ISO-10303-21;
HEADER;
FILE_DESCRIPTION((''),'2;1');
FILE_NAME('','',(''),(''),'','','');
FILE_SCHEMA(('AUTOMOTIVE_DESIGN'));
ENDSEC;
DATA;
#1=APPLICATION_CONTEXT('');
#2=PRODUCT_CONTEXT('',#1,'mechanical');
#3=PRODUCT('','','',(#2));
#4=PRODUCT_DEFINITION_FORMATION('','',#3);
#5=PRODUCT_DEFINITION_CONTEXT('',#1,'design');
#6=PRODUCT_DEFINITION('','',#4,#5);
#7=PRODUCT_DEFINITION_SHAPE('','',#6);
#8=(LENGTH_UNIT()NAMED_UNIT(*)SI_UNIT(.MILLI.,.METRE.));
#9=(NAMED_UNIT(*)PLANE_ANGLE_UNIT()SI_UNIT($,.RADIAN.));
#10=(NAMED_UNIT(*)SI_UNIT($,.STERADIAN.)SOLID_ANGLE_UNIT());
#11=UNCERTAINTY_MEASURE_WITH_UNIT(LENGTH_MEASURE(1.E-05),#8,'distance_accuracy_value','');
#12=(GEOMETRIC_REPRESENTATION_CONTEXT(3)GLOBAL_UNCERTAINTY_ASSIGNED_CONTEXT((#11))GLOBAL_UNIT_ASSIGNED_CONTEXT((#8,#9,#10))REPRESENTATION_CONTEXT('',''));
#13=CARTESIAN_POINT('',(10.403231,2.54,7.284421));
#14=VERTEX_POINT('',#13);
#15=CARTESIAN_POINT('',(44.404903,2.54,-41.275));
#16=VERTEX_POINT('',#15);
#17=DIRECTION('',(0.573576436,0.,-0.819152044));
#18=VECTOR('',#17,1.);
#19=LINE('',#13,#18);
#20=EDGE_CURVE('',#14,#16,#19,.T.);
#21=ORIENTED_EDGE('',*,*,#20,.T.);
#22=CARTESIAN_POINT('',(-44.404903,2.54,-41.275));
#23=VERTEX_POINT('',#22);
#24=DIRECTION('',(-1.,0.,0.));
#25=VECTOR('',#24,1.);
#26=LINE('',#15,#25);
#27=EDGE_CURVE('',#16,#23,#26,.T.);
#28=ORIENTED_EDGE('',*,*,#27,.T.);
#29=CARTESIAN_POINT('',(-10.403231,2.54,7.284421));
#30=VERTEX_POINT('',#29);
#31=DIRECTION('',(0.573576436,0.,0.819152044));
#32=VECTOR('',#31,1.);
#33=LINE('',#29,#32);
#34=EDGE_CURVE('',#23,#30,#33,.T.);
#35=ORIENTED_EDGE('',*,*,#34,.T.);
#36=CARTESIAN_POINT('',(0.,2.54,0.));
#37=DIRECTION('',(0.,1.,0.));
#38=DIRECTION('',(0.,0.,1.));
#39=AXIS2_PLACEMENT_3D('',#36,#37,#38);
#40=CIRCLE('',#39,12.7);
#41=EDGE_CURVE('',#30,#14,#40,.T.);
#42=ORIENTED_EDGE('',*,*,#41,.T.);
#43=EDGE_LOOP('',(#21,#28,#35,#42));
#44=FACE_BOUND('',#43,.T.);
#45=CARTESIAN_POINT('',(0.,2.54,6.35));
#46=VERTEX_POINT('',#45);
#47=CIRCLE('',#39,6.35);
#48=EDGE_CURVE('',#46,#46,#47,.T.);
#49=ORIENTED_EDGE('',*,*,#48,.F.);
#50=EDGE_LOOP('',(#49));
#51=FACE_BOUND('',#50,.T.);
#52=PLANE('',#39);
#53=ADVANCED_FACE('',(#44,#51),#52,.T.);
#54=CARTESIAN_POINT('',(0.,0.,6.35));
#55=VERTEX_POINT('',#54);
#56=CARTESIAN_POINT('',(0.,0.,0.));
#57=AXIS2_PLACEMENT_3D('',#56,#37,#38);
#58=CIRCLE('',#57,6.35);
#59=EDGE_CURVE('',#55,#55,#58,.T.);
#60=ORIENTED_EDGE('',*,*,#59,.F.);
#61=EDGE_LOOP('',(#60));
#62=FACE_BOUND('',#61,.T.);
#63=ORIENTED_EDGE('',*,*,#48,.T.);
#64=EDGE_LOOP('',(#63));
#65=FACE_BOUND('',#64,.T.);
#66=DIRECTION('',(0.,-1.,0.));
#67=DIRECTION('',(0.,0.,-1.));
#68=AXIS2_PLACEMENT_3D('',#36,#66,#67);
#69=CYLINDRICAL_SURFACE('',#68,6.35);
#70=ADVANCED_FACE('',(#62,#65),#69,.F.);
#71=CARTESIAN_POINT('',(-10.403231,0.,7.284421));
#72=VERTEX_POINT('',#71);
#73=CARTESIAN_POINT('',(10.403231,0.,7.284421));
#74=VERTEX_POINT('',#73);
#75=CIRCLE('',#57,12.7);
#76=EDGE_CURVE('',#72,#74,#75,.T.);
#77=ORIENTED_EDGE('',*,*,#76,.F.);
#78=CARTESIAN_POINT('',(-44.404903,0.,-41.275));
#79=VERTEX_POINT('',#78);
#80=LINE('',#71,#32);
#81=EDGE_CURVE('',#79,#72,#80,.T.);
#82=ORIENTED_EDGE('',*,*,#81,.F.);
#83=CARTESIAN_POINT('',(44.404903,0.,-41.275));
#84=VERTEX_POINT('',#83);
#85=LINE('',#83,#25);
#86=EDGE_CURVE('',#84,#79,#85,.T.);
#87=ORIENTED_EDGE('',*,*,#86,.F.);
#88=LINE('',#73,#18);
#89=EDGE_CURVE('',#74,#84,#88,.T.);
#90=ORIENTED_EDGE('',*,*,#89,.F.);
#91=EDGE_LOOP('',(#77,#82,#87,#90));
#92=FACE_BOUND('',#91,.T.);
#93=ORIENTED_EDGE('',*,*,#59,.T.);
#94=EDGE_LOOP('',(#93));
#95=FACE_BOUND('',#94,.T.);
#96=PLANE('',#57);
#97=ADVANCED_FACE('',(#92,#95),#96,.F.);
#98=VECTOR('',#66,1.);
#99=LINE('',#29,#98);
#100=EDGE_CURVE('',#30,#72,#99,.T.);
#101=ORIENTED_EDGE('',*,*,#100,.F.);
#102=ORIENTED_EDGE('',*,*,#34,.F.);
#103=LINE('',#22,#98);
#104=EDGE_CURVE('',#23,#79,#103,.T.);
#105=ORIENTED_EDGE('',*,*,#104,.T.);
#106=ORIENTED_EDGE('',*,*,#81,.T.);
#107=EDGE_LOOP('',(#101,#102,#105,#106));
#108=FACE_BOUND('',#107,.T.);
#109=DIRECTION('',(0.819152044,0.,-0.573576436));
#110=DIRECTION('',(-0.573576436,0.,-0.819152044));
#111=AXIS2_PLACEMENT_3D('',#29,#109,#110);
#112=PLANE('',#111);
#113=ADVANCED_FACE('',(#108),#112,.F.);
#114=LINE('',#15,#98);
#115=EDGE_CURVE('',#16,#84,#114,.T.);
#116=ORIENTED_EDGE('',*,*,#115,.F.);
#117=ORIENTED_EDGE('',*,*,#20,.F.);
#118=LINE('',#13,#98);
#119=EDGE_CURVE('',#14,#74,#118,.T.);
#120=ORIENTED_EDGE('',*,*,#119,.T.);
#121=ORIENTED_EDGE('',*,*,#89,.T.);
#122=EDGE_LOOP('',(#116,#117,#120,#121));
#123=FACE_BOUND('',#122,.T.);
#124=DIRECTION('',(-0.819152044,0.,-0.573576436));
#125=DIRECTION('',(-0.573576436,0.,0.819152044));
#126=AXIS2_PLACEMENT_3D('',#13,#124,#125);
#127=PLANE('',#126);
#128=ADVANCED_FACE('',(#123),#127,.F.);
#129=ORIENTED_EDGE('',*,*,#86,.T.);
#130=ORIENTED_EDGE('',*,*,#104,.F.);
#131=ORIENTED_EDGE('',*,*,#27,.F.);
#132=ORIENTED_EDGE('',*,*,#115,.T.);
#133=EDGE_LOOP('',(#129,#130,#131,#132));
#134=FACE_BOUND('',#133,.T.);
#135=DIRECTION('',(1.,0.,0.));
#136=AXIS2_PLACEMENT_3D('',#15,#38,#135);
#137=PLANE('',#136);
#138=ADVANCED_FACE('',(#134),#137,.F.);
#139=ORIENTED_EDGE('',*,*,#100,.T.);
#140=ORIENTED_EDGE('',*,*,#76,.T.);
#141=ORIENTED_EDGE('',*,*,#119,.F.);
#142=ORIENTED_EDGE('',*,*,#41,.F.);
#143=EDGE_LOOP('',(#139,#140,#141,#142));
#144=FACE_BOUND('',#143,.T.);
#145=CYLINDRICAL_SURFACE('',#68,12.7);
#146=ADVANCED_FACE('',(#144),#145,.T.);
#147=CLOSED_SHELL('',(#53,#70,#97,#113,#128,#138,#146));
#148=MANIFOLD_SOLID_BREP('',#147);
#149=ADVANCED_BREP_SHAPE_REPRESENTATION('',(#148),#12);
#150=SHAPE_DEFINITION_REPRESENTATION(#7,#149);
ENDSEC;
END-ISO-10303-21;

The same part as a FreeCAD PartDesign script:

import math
import FreeCAD as App
import Part
import Sketcher
from FreeCAD import Vector
Q = App.Units.Quantity

doc = App.newDocument("Part")
body = doc.addObject("PartDesign::Body", "Body")

# Sketch on XZ plane
sketch1 = body.newObject("Sketcher::SketchObject", "Sketch")
sketch1.AttachmentSupport = (doc.getObject("XZ_Plane"), [""])
sketch1.MapMode = "FlatFace"
sketch1.addGeometry([
    Part.LineSegment(Vector(10.403231, 7.284421, 0), Vector(44.404903, -41.275, 0)),  # 0
    Part.LineSegment(Vector(44.404903, -41.275, 0), Vector(-44.404903, -41.275, 0)),  # 1
    Part.LineSegment(Vector(-44.404903, -41.275, 0), Vector(-10.403231, 7.284421, 0)),  # 2
    Part.ArcOfCircle(Part.Circle(Vector(0, 0, 0), Vector(0, 0, 1), 12.7), math.radians(35), math.radians(145)),  # 3
    Part.Circle(Vector(0, 0, 0), Vector(0, 0, 1), 6.35),  # 4
], False)
sketch1.addConstraint([
    Sketcher.Constraint("Coincident", 0, 2, 1, 1),
    Sketcher.Constraint("Coincident", 1, 2, 2, 1),
    Sketcher.Constraint("Tangent", 2, 2, 3, 2),
    Sketcher.Constraint("Tangent", 3, 1, 0, 1),
    Sketcher.Constraint("Horizontal", 1),
    Sketcher.Constraint("Coincident", 3, 3, -1, 1),
    Sketcher.Constraint("Coincident", 4, 3, -1, 1),
    Sketcher.Constraint("Horizontal", 2, 2, 3, 1),
    Sketcher.Constraint("Diameter", 4, Q("0.5 in")),
    Sketcher.Constraint("Radius", 3, Q("0.5 in")),
    Sketcher.Constraint("Angle", 0, Q("-55 deg")),
    Sketcher.Constraint("DistanceY", 0, 2, -1, 1, Q("1.625 in")),
])
pad1 = body.newObject("PartDesign::Pad", "Pad")
pad1.Profile = sketch1
pad1.Length = Q("0.1 in")
pad1.Reversed = True

doc.recompute()
